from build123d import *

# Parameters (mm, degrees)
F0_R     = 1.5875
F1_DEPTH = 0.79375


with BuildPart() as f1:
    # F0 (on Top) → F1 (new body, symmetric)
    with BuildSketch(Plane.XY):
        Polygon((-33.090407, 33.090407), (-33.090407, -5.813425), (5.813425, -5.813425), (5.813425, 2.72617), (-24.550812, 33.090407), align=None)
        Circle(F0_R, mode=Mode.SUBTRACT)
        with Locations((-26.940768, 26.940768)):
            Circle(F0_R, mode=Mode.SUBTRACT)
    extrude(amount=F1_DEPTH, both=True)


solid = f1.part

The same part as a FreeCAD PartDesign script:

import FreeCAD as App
import Part
import Sketcher

V = App.Vector
Q = App.Units.Quantity


def add_polygon(sketch, points):
    """Adds a closed chain of lines whose ends are joined by coincident constraints."""
    first, n = sketch.GeometryCount, len(points)
    for a, b in zip(points, points[1:] + points[:1]):
        sketch.addGeometry(Part.LineSegment(App.Vector(*a, 0), App.Vector(*b, 0)), False)
    for i in range(n):
        sketch.addConstraint(Sketcher.Constraint("Coincident", first + i, 2, first + (i + 1) % n, 1))

doc = App.newDocument("Part")
body = doc.addObject("PartDesign::Body", "Body")

# Sketch on XY plane
sketch1 = body.newObject("Sketcher::SketchObject", "Sketch")
sketch1.AttachmentSupport = (doc.getObject("XY_Plane"), [""])
sketch1.MapMode = "FlatFace"
add_polygon(sketch1, [(-33.090407, 33.090407), (-33.090407, -5.813425), (5.813425, -5.813425), (5.813425, 2.72617), (-24.550812, 33.090407)])  # lines 0-4
sketch1.addGeometry(Part.Circle(V(0, 0, 0), V(0, 0, 1), 1.5875), False)  # 5
sketch1.addGeometry(Part.Circle(V(-26.940768, 26.940768, 0), V(0, 0, 1), 1.5875), False)  # 6
sketch1.addConstraint(Sketcher.Constraint("Vertical", 0))
sketch1.addConstraint(Sketcher.Constraint("Horizontal", 1))
sketch1.addConstraint(Sketcher.Constraint("Vertical", 2))
sketch1.addConstraint(Sketcher.Constraint("Horizontal", 4))
sketch1.addConstraint(Sketcher.Constraint("Coincident", 5, 3, -1, 1))
sketch1.addConstraint(Sketcher.Constraint("Equal", 5, 6))
sketch1.addConstraint(Sketcher.Constraint("Equal", 1, 0))
sketch1.addConstraint(Sketcher.Constraint("Equal", 4, 2))
sketch1.addConstraint(Sketcher.Constraint("Diameter", 5, Q("0.125 in")))
sketch1.addConstraint(Sketcher.Constraint("DistanceX", 1, 1, 1, 2, Q("38.903832 mm")))
sketch1.addConstraint(Sketcher.Constraint("DistanceX", 4, 2, 4, 1, Q("8.539595 mm")))
sketch1.addConstraint(Sketcher.Constraint("DistanceY", -1, 1, 2, 2, Q("2.72617 mm")))
sketch1.addConstraint(Sketcher.Constraint("DistanceX", 0, 2, 6, 3, Q("6.149639 mm")))
sketch1.addConstraint(Sketcher.Constraint("DistanceY", 6, 3, 3, 2, Q("6.149639 mm")))
sketch1.addConstraint(Sketcher.Constraint("DistanceX", 6, 3, -1, 1, Q("26.940768 mm")))
pad1 = body.newObject("PartDesign::Pad", "Pad")
pad1.Profile = sketch1
pad1.Length = Q("0.0625 in")
pad1.Midplane = True

doc.recompute()
